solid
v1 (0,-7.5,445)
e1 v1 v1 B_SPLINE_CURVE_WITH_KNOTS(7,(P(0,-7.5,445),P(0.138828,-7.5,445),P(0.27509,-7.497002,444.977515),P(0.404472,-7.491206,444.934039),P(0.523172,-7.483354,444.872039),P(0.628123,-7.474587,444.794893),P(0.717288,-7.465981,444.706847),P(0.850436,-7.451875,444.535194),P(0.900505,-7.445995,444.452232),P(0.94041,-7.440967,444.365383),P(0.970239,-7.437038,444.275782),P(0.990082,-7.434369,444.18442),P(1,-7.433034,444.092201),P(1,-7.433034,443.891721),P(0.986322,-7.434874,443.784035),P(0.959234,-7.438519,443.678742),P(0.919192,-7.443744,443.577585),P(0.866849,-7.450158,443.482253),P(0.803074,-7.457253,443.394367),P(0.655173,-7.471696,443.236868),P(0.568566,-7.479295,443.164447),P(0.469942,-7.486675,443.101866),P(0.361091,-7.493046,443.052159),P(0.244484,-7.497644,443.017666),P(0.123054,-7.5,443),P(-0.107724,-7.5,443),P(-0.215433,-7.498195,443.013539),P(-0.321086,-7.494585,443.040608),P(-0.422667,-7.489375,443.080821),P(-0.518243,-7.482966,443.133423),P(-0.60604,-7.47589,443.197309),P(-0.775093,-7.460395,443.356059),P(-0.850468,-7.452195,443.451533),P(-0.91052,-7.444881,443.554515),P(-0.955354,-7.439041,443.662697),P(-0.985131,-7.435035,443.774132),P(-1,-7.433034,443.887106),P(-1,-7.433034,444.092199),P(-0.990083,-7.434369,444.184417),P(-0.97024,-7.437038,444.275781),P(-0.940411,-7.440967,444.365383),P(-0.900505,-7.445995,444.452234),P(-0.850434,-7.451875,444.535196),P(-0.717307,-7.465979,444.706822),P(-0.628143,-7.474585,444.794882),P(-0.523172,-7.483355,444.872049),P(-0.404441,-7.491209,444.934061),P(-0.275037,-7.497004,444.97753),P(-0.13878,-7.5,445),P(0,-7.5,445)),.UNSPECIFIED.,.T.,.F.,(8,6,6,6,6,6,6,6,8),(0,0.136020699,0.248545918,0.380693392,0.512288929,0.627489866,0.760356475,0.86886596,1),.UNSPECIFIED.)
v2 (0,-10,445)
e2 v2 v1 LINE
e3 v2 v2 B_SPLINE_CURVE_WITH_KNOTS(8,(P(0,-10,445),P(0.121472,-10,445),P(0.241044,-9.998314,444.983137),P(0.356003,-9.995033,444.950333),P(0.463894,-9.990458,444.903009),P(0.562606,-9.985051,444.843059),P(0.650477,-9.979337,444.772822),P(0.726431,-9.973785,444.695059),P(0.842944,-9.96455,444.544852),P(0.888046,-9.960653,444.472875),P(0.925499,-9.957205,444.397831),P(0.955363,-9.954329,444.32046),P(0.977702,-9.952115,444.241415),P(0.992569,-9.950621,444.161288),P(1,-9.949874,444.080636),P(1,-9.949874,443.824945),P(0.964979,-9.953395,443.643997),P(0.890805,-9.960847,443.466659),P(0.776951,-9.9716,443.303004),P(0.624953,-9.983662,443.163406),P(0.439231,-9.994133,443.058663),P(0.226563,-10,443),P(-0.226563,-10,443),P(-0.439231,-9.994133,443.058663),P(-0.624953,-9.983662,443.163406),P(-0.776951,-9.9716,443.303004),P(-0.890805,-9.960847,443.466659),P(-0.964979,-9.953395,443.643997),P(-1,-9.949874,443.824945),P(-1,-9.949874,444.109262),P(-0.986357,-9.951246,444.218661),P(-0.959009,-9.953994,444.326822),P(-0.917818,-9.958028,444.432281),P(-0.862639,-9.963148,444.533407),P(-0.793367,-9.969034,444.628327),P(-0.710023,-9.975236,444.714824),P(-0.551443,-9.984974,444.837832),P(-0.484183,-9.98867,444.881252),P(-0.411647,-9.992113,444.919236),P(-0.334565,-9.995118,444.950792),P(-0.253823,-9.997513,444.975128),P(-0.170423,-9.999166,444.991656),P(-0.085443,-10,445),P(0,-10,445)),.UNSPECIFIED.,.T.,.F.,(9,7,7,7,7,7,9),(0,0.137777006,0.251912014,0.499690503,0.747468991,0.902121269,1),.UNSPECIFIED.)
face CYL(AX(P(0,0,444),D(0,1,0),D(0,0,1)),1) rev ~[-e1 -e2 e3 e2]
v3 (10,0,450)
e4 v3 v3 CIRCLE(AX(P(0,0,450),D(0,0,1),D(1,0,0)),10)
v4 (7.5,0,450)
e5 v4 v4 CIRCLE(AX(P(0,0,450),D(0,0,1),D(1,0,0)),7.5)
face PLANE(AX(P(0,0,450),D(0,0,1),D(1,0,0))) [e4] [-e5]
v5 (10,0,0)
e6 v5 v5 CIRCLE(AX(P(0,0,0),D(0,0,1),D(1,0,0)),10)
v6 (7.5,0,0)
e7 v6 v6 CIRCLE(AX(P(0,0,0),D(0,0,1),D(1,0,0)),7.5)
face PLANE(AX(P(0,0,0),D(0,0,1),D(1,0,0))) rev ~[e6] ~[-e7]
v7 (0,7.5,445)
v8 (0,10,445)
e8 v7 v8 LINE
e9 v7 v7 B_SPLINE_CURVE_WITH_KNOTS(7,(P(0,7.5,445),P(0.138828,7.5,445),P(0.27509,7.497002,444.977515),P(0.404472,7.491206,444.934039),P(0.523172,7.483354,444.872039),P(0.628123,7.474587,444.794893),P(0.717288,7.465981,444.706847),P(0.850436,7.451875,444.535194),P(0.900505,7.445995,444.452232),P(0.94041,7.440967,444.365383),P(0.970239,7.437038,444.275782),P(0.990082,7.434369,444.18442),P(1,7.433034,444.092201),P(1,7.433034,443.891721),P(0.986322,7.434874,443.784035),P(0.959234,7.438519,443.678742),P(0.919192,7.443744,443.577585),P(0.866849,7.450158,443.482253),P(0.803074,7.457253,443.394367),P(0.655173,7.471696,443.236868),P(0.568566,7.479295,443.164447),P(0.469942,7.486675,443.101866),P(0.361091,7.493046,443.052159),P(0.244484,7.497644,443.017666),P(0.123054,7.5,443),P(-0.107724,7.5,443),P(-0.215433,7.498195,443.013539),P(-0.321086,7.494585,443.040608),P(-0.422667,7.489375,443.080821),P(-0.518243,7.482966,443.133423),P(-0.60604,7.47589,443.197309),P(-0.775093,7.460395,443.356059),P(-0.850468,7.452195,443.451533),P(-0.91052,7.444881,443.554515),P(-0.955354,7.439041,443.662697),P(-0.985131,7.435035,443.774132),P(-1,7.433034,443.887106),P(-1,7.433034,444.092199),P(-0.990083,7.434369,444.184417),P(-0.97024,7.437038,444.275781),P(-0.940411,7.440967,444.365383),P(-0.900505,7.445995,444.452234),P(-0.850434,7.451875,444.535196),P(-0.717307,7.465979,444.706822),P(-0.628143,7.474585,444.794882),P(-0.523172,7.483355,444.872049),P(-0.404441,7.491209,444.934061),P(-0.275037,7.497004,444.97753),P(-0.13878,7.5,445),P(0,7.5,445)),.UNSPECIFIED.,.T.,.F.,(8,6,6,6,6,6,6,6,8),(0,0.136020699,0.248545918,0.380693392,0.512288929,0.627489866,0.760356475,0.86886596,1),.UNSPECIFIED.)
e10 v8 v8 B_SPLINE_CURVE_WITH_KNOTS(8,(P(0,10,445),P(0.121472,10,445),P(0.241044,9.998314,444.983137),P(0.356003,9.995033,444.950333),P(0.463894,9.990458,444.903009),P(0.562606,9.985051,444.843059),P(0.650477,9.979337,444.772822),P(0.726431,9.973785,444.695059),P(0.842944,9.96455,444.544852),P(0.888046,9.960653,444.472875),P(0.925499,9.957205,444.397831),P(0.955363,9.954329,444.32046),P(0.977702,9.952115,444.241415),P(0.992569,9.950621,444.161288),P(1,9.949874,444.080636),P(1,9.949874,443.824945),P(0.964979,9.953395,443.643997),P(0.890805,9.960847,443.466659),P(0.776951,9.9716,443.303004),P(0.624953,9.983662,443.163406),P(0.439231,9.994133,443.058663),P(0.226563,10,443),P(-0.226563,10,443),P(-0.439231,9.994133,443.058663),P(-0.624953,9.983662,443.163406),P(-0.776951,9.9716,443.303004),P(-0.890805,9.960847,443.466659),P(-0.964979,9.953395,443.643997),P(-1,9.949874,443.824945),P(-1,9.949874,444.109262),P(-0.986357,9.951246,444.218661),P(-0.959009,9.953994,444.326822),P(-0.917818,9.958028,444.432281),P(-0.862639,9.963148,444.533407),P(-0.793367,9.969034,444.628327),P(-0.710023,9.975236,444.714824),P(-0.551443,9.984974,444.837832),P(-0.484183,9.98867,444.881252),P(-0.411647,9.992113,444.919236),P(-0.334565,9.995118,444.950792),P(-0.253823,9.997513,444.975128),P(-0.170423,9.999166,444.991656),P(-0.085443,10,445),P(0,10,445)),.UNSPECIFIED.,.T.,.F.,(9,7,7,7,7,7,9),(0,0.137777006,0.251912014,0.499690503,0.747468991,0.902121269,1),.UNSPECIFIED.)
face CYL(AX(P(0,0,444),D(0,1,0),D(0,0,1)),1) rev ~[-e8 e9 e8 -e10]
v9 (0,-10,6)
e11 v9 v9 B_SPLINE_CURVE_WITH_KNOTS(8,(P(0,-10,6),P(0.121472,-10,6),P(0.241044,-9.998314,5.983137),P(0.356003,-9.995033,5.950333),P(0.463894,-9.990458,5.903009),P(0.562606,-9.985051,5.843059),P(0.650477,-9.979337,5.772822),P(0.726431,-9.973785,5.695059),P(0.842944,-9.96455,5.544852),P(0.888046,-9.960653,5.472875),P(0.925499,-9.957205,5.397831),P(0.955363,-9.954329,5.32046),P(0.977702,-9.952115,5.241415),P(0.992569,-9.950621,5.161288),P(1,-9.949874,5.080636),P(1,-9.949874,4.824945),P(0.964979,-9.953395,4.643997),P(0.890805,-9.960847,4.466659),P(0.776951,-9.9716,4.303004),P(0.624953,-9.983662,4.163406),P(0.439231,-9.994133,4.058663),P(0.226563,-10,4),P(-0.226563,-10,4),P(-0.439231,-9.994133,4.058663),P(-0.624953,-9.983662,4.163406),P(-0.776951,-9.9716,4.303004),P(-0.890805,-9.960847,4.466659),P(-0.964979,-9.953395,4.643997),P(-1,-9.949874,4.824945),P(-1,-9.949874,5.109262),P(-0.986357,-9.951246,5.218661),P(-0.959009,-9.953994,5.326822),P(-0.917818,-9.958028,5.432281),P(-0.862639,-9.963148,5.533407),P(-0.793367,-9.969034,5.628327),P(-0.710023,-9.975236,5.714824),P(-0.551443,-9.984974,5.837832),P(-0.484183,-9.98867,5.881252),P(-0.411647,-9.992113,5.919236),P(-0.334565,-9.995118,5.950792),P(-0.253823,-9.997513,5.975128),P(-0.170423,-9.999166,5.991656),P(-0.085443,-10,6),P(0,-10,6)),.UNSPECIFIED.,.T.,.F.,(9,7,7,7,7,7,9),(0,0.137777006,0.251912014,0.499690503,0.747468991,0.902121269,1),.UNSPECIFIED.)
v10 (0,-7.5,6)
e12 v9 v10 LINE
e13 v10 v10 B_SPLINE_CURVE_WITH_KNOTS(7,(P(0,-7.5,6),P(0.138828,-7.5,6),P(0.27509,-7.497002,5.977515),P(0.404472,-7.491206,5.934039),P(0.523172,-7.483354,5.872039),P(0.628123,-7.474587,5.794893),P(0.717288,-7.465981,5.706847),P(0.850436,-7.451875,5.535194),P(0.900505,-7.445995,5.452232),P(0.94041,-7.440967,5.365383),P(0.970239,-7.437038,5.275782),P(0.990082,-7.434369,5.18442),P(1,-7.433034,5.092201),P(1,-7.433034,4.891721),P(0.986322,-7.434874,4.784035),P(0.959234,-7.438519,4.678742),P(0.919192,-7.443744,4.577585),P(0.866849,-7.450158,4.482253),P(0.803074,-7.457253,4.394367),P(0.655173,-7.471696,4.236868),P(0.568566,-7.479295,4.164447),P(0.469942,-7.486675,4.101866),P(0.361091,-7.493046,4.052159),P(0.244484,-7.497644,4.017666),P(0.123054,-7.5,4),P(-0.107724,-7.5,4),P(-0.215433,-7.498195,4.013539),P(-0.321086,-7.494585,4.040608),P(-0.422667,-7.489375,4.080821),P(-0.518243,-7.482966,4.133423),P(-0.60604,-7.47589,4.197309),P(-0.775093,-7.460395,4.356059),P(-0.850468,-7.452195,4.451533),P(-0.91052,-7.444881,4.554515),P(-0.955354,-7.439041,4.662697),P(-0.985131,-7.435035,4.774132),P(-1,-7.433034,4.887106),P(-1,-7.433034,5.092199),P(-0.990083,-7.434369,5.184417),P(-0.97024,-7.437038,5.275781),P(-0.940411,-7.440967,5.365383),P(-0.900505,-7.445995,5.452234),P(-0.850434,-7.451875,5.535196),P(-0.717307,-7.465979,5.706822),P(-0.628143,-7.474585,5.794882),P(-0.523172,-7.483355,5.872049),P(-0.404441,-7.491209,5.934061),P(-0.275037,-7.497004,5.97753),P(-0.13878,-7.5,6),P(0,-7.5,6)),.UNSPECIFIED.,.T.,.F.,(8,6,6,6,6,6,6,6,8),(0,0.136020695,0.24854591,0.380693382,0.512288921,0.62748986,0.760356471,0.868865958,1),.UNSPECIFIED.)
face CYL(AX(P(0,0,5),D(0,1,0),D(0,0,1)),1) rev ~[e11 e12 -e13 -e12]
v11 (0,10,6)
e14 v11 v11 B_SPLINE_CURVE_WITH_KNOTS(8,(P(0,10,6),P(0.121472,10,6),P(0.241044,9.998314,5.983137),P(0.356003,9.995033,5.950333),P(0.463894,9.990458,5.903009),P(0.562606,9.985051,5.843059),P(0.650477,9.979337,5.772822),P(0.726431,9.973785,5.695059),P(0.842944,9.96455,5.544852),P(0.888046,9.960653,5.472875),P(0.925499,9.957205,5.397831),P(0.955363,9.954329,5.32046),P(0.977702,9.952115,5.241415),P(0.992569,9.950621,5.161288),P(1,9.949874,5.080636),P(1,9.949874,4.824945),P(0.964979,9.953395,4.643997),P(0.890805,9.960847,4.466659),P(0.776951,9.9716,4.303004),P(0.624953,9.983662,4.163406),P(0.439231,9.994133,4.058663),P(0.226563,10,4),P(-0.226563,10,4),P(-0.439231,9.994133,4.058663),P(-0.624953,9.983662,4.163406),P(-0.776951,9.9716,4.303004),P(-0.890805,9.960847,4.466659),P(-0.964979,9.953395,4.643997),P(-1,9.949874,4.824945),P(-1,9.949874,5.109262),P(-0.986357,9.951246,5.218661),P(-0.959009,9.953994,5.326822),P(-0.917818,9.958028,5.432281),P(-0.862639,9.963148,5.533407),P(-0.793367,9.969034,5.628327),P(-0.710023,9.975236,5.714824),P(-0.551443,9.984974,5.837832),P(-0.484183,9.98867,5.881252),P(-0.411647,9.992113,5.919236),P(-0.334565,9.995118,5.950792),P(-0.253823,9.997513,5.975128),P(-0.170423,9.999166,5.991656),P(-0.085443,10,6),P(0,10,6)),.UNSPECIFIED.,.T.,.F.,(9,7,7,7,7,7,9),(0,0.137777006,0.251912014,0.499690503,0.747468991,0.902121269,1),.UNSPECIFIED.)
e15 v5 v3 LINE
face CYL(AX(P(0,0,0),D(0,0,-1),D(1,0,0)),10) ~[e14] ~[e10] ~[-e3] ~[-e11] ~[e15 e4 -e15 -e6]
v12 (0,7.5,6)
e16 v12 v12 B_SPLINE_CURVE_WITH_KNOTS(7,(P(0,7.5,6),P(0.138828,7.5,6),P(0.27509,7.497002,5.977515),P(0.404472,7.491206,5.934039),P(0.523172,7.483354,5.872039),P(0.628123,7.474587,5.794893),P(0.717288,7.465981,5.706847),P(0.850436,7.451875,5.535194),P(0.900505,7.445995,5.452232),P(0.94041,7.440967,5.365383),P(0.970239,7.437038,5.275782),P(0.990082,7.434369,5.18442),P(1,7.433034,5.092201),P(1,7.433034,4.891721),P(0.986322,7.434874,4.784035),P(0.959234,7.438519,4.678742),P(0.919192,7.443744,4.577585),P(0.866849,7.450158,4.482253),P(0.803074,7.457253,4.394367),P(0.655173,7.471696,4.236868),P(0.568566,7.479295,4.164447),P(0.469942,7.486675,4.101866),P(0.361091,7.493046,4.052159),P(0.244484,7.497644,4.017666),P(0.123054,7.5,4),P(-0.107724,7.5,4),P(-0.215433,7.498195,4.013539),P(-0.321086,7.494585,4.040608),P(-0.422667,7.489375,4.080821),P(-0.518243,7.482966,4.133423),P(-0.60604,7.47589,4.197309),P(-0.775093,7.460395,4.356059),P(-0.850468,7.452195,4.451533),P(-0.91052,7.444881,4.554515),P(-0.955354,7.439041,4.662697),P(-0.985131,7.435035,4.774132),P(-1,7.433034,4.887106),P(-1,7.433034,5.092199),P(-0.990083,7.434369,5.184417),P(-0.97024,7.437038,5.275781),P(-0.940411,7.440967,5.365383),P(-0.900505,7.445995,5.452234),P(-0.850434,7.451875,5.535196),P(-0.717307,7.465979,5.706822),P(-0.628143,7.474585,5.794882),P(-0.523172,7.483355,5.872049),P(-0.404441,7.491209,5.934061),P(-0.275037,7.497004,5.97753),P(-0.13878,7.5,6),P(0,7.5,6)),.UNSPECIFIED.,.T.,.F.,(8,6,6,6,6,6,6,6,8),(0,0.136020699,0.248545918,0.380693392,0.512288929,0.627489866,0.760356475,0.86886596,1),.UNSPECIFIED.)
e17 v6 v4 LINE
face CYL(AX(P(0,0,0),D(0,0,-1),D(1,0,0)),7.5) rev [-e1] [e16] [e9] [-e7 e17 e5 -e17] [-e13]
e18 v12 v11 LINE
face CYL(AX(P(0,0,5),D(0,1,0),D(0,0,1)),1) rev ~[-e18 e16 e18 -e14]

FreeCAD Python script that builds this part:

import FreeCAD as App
import Part
import Sketcher

doc = App.newDocument("Part")
body = doc.addObject("PartDesign::Body", "Body")

# Sketch on XY plane
sketch1 = body.newObject("Sketcher::SketchObject", "Sketch")
sketch1.AttachmentSupport = (doc.getObject("XY_Plane"), [""])
sketch1.MapMode = "FlatFace"
sketch1.addGeometry(Part.Circle(App.Vector(0, 0, 0), App.Vector(0, 0, 1), 10), False)
sketch1.addGeometry(Part.Circle(App.Vector(0, 0, 0), App.Vector(0, 0, 1), 8), False)
sketch1.addConstraint(Sketcher.Constraint("Coincident", 0, 3, -1, 1))
sketch1.addConstraint(Sketcher.Constraint("Coincident", 1, 3, -1, 1))
sketch1.addConstraint(Sketcher.Constraint("Diameter", 0, 20.0))
sketch1.addConstraint(Sketcher.Constraint("Diameter", 1, 15.0))
pad1 = body.newObject("PartDesign::Pad", "Pad")
pad1.Profile = sketch1
pad1.Length = 450

# Sketch on XZ plane
sketch2 = body.newObject("Sketcher::SketchObject", "Sketch001")
sketch2.AttachmentSupport = (doc.getObject("XZ_Plane"), [""])
sketch2.MapMode = "FlatFace"
sketch2.addGeometry(Part.Circle(App.Vector(0, 5, 0), App.Vector(0, 0, 1), 1), False)
sketch2.addConstraint(Sketcher.Constraint("PointOnObject", 0, 3, -2))
sketch2.addConstraint(Sketcher.Constraint("Diameter", 0, 2.0))
sketch2.addConstraint(Sketcher.Constraint("DistanceY", -1, 1, 0, 3, 5.0))
pocket1 = body.newObject("PartDesign::Pocket", "Pocket")
pocket1.Profile = sketch2
pocket1.Length = 40
pocket1.Midplane = True

# Sketch on XZ plane
sketch3 = body.newObject("Sketcher::SketchObject", "Sketch002")
sketch3.AttachmentSupport = (doc.getObject("XZ_Plane"), [""])
sketch3.MapMode = "FlatFace"
sketch3.addGeometry(Part.Circle(App.Vector(0, 444, 0), App.Vector(0, 0, 1), 1), False)
sketch3.addConstraint(Sketcher.Constraint("PointOnObject", 0, 3, -2))
sketch3.addConstraint(Sketcher.Constraint("Diameter", 0, 2.0))
sketch3.addConstraint(Sketcher.Constraint("DistanceY", -1, 1, 0, 3, 444.0))
pocket2 = body.newObject("PartDesign::Pocket", "Pocket001")
pocket2.Profile = sketch3
pocket2.Length = 40
pocket2.Midplane = True

doc.recompute()
